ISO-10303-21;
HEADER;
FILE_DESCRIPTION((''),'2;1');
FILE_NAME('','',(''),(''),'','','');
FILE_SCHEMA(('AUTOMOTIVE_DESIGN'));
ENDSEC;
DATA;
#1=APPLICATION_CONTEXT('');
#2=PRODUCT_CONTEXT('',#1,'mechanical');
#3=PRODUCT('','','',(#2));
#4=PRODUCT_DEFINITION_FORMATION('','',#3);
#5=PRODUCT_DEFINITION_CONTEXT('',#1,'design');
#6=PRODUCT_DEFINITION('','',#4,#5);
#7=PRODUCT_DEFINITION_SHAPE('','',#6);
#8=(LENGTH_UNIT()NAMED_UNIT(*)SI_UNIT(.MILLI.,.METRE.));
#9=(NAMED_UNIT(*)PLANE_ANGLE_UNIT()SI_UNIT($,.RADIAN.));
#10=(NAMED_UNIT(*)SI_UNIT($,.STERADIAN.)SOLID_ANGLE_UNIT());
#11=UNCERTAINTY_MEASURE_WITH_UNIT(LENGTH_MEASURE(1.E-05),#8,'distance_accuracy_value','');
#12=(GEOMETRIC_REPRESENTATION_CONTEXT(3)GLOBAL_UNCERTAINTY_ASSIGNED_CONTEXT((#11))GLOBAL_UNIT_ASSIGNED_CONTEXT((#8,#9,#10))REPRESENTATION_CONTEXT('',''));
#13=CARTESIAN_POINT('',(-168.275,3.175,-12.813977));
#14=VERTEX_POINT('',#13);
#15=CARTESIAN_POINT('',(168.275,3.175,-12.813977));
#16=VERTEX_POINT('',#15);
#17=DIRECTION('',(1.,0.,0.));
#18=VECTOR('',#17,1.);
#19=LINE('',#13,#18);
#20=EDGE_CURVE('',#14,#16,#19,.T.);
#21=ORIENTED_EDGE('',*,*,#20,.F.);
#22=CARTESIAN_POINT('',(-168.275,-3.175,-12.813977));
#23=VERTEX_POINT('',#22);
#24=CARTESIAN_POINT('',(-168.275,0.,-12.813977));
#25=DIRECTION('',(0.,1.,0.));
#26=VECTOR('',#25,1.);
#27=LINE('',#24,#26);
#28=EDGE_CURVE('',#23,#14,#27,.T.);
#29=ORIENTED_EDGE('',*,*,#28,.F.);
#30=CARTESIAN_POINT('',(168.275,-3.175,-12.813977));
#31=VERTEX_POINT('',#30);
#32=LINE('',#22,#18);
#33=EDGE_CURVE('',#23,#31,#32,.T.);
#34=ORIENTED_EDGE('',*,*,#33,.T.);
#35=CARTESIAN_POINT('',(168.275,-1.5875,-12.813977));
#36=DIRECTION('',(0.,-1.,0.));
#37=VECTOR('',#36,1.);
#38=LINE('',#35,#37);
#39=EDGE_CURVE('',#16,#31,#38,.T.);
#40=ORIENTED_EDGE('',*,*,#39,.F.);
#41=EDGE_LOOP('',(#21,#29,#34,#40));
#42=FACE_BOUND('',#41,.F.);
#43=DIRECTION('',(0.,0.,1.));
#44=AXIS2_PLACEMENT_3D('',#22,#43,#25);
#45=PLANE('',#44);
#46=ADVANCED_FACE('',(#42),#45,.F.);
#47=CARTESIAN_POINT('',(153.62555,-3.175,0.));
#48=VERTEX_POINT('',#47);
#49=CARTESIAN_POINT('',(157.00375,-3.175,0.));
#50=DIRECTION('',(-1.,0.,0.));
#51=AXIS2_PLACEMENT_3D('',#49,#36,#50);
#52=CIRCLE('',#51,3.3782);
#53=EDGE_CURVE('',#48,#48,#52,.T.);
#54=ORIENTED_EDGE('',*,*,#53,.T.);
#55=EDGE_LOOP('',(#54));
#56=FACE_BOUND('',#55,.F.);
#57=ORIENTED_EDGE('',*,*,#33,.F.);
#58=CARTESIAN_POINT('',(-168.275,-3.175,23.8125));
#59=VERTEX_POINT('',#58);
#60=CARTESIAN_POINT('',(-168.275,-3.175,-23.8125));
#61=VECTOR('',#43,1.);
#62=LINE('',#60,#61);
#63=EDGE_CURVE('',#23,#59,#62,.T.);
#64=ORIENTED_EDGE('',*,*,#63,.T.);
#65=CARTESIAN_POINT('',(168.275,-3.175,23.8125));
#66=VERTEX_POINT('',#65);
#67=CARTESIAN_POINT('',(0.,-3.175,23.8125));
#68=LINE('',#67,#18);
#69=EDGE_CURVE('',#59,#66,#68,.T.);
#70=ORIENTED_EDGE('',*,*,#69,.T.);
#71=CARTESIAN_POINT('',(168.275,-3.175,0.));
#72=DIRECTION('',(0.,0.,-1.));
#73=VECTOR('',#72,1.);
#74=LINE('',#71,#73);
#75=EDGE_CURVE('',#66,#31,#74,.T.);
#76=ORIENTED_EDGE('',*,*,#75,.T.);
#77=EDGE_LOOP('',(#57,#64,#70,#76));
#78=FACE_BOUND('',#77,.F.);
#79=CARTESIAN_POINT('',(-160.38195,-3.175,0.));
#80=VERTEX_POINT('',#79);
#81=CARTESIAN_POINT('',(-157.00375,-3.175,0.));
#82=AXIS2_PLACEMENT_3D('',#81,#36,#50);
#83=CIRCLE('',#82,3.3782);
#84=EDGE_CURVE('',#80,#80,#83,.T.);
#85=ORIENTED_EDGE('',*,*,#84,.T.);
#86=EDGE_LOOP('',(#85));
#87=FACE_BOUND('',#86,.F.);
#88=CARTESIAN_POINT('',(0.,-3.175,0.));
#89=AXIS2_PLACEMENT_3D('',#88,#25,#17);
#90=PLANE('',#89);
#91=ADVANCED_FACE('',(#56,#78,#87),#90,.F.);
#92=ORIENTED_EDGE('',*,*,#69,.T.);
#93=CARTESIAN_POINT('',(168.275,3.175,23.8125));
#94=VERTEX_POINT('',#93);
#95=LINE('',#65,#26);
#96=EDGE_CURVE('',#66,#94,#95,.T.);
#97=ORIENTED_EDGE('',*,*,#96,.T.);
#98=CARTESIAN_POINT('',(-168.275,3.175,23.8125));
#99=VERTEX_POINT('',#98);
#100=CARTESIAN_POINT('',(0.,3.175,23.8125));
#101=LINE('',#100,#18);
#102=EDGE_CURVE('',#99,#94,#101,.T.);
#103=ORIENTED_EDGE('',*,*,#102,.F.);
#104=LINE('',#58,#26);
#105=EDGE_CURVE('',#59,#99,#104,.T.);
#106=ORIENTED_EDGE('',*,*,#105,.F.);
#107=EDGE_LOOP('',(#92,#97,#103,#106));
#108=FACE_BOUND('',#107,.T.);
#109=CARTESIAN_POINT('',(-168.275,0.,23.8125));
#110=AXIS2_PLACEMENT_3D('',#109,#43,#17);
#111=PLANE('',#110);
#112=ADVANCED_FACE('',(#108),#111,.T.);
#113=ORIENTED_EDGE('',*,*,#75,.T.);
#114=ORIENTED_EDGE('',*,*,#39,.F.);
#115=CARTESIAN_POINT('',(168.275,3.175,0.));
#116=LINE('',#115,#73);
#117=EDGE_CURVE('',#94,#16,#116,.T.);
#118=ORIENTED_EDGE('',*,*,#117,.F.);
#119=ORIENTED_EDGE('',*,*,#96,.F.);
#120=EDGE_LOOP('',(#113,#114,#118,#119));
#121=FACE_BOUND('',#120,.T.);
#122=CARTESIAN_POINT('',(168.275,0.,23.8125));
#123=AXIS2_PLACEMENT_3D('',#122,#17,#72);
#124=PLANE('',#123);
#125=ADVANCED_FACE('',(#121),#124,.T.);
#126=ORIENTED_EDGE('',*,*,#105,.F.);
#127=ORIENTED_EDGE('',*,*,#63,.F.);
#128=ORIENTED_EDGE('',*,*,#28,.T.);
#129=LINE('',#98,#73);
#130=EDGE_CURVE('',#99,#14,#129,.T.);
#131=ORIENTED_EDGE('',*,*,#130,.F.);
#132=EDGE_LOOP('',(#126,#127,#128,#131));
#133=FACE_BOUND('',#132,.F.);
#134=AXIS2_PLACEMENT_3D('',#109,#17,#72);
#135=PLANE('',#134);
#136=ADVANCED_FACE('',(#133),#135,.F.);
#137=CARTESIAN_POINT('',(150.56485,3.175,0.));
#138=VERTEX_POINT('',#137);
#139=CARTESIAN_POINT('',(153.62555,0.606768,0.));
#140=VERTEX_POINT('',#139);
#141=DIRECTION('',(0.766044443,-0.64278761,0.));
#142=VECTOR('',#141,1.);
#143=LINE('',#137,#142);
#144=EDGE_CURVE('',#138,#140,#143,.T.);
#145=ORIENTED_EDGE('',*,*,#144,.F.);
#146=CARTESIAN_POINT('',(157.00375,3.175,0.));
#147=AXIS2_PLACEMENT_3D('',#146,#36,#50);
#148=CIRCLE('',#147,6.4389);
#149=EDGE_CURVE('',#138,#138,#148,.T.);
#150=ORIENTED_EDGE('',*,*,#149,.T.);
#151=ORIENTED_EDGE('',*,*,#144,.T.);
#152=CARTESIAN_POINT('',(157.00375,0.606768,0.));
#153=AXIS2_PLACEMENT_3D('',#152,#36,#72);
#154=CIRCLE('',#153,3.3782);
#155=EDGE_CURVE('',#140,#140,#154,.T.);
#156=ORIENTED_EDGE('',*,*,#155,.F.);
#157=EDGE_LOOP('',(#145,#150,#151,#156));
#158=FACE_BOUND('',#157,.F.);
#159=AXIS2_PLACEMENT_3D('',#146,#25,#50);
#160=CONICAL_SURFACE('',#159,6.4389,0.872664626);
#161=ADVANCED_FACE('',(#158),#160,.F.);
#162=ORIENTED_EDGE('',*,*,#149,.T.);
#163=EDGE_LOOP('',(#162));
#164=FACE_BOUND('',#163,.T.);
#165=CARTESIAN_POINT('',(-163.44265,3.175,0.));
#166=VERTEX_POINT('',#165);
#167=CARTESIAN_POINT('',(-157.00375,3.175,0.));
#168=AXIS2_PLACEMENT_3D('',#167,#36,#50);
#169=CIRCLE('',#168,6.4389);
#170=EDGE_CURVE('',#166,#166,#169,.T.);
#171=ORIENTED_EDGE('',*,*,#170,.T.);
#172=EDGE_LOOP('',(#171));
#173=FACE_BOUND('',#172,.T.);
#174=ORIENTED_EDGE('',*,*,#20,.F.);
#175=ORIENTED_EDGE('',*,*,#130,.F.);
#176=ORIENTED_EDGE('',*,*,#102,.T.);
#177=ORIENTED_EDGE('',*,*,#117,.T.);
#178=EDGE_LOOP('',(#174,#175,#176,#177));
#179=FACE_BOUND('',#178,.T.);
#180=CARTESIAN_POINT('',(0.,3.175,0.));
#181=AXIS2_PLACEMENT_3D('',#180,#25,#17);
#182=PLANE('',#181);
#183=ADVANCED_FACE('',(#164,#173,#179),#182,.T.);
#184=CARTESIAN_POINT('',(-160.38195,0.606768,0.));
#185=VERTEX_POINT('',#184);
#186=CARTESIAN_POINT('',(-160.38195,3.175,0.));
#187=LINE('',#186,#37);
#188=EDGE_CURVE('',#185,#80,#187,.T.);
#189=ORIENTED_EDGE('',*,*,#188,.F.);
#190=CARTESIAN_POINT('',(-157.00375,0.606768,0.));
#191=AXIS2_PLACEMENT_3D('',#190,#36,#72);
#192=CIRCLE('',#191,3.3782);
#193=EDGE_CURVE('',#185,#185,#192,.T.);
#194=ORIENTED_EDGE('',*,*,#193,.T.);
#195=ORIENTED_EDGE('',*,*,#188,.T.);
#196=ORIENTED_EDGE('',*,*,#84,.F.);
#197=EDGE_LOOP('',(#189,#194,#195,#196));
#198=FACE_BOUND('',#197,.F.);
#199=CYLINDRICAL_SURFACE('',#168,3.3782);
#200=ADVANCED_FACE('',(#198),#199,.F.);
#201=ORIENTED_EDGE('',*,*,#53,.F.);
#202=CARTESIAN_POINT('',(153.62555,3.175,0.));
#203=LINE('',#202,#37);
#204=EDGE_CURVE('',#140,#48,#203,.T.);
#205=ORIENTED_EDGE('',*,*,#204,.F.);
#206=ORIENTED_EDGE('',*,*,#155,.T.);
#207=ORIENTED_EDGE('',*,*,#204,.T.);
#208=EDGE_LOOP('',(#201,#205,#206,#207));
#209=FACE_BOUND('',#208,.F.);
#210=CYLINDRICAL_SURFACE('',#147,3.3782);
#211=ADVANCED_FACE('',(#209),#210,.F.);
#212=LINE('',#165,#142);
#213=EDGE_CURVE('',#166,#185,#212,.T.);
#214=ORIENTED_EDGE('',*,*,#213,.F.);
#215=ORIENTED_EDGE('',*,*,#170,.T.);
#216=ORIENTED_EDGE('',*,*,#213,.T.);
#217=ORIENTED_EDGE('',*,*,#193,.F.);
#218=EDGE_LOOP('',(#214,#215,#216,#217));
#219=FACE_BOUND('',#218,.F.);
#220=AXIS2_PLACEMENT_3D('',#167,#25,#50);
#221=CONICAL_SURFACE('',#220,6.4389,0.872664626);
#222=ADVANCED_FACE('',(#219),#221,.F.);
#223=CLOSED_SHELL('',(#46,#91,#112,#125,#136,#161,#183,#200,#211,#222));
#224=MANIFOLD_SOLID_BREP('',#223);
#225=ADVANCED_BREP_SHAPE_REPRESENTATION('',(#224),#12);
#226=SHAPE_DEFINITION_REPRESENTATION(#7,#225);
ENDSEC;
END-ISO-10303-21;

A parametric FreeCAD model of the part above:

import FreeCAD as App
import Part
import Sketcher
from FreeCAD import Vector
Q = App.Units.Quantity


def add_polygon(sketch, points):
    """Adds a closed chain of lines whose ends are joined by coincident constraints."""
    first, n = sketch.GeometryCount, len(points)
    for a, b in zip(points, points[1:] + points[:1]):
        sketch.addGeometry(Part.LineSegment(App.Vector(*a, 0), App.Vector(*b, 0)), False)
    for i in range(n):
        sketch.addConstraint(Sketcher.Constraint("Coincident", first + i, 2, first + (i + 1) % n, 1))

doc = App.newDocument("Part")
body = doc.addObject("PartDesign::Body", "Body")

sketch1 = doc.addObject("Sketcher::SketchObject", "Sketch")
body.addObject(sketch1)
sketch1.AttachmentSupport = (doc.XZ_Plane, [""])
sketch1.MapMode = "FlatFace"
add_polygon(sketch1, [(-168.275, -23.8125), (-168.275, 23.8125), (168.275, 23.8125), (168.275, -23.8125)])
sketch1.addConstraint(Sketcher.Constraint("Vertical", 0))
sketch1.addConstraint(Sketcher.Constraint("Horizontal", 1))
sketch1.addConstraint(Sketcher.Constraint("Vertical", 2))
sketch1.addConstraint(Sketcher.Constraint("Horizontal", 3))
sketch1.addConstraint(Sketcher.Constraint("Symmetric", 0, 2, 2, 2, -1, 1))
sketch1.addConstraint(Sketcher.Constraint("DistanceX", 1, 1, 1, 2, Q("13.25 in")))
sketch1.addConstraint(Sketcher.Constraint("DistanceY", 0, 1, 0, 2, Q("1.875 in")))
pad1 = doc.addObject("PartDesign::Pad", "Pad")
body.addObject(pad1)
pad1.Profile = sketch1
pad1.Length = Q("0.25 in")
pad1.Midplane = True

sketch2 = doc.addObject("Sketcher::SketchObject", "Sketch001")
body.addObject(sketch2)
sketch2.AttachmentSupport = (doc.XZ_Plane, [""])
sketch2.MapMode = "FlatFace"
sketch2.AttachmentOffset = App.Placement(Vector(0, 0, -0.125 * 25.4), App.Rotation())
sketch2.addGeometry(Part.Circle(Vector(-157.00375, 0, 0), Vector(0, 0, 1), 3.3782), False)
sketch2.addGeometry(Part.Circle(Vector(157.00375, 0, 0), Vector(0, 0, 1), 3.3782), False)
sketch2.addConstraint(Sketcher.Constraint("Equal", 0, 1))
sketch2.addConstraint(Sketcher.Constraint("Symmetric", 0, 3, 1, 3, -1, 1))
sketch2.addConstraint(Sketcher.Constraint("PointOnObject", 0, 3, -1))
sketch2.addConstraint(Sketcher.Constraint("Diameter", 0, Q("0.266 in")))
sketch2.addConstraint(Sketcher.Constraint("DistanceX", 0, 3, 1, 3, Q("12.3625 in")))
doc.recompute()
hole = doc.addObject("PartDesign::Hole", "Hole")
body.addObject(hole)
hole.Profile = sketch2
hole.ThreadType = "None"
hole.Diameter = Q("0.266 in")
hole.DepthType = "ThroughAll"
hole.HoleCutType = "Countersink"
hole.HoleCutDiameter = Q("0.507 in")
hole.HoleCutCountersinkAngle = 100
hole.Reversed = True

sketch3 = doc.addObject("Sketcher::SketchObject", "Sketch002")
body.addObject(sketch3)
sketch3.AttachmentSupport = (doc.YZ_Plane, [""])
sketch3.MapMode = "FlatFace"
sketch3.AttachmentOffset = App.Placement(Vector(0, 0, -6.625 * 25.4), App.Rotation())
add_polygon(sketch3, [(3.175, -23.8125), (-3.175, -23.8125), (-3.175, -12.813977), (3.175, -12.813977)])
sketch3.addConstraint(Sketcher.Constraint("Horizontal", 0))
sketch3.addConstraint(Sketcher.Constraint("Vertical", 1))
sketch3.addConstraint(Sketcher.Constraint("Horizontal", 2))
sketch3.addConstraint(Sketcher.Constraint("Vertical", 3))
sketch3.addConstraint(Sketcher.Constraint("DistanceX", 0, 2, 0, 1, Q("0.25 in")))
sketch3.addConstraint(Sketcher.Constraint("DistanceX", 0, 2, -1, 1, Q("0.125 in")))
sketch3.addConstraint(Sketcher.Constraint("DistanceY", 0, 2, -1, 1, Q("0.9375 in")))
sketch3.addConstraint(Sketcher.Constraint("DistanceY", 1, 1, 1, 2, 10.998523))
pocket1 = doc.addObject("PartDesign::Pocket", "Pocket")
body.addObject(pocket1)
pocket1.Profile = sketch3
pocket1.Type = "ThroughAll"
pocket1.Midplane = True

doc.recompute()
